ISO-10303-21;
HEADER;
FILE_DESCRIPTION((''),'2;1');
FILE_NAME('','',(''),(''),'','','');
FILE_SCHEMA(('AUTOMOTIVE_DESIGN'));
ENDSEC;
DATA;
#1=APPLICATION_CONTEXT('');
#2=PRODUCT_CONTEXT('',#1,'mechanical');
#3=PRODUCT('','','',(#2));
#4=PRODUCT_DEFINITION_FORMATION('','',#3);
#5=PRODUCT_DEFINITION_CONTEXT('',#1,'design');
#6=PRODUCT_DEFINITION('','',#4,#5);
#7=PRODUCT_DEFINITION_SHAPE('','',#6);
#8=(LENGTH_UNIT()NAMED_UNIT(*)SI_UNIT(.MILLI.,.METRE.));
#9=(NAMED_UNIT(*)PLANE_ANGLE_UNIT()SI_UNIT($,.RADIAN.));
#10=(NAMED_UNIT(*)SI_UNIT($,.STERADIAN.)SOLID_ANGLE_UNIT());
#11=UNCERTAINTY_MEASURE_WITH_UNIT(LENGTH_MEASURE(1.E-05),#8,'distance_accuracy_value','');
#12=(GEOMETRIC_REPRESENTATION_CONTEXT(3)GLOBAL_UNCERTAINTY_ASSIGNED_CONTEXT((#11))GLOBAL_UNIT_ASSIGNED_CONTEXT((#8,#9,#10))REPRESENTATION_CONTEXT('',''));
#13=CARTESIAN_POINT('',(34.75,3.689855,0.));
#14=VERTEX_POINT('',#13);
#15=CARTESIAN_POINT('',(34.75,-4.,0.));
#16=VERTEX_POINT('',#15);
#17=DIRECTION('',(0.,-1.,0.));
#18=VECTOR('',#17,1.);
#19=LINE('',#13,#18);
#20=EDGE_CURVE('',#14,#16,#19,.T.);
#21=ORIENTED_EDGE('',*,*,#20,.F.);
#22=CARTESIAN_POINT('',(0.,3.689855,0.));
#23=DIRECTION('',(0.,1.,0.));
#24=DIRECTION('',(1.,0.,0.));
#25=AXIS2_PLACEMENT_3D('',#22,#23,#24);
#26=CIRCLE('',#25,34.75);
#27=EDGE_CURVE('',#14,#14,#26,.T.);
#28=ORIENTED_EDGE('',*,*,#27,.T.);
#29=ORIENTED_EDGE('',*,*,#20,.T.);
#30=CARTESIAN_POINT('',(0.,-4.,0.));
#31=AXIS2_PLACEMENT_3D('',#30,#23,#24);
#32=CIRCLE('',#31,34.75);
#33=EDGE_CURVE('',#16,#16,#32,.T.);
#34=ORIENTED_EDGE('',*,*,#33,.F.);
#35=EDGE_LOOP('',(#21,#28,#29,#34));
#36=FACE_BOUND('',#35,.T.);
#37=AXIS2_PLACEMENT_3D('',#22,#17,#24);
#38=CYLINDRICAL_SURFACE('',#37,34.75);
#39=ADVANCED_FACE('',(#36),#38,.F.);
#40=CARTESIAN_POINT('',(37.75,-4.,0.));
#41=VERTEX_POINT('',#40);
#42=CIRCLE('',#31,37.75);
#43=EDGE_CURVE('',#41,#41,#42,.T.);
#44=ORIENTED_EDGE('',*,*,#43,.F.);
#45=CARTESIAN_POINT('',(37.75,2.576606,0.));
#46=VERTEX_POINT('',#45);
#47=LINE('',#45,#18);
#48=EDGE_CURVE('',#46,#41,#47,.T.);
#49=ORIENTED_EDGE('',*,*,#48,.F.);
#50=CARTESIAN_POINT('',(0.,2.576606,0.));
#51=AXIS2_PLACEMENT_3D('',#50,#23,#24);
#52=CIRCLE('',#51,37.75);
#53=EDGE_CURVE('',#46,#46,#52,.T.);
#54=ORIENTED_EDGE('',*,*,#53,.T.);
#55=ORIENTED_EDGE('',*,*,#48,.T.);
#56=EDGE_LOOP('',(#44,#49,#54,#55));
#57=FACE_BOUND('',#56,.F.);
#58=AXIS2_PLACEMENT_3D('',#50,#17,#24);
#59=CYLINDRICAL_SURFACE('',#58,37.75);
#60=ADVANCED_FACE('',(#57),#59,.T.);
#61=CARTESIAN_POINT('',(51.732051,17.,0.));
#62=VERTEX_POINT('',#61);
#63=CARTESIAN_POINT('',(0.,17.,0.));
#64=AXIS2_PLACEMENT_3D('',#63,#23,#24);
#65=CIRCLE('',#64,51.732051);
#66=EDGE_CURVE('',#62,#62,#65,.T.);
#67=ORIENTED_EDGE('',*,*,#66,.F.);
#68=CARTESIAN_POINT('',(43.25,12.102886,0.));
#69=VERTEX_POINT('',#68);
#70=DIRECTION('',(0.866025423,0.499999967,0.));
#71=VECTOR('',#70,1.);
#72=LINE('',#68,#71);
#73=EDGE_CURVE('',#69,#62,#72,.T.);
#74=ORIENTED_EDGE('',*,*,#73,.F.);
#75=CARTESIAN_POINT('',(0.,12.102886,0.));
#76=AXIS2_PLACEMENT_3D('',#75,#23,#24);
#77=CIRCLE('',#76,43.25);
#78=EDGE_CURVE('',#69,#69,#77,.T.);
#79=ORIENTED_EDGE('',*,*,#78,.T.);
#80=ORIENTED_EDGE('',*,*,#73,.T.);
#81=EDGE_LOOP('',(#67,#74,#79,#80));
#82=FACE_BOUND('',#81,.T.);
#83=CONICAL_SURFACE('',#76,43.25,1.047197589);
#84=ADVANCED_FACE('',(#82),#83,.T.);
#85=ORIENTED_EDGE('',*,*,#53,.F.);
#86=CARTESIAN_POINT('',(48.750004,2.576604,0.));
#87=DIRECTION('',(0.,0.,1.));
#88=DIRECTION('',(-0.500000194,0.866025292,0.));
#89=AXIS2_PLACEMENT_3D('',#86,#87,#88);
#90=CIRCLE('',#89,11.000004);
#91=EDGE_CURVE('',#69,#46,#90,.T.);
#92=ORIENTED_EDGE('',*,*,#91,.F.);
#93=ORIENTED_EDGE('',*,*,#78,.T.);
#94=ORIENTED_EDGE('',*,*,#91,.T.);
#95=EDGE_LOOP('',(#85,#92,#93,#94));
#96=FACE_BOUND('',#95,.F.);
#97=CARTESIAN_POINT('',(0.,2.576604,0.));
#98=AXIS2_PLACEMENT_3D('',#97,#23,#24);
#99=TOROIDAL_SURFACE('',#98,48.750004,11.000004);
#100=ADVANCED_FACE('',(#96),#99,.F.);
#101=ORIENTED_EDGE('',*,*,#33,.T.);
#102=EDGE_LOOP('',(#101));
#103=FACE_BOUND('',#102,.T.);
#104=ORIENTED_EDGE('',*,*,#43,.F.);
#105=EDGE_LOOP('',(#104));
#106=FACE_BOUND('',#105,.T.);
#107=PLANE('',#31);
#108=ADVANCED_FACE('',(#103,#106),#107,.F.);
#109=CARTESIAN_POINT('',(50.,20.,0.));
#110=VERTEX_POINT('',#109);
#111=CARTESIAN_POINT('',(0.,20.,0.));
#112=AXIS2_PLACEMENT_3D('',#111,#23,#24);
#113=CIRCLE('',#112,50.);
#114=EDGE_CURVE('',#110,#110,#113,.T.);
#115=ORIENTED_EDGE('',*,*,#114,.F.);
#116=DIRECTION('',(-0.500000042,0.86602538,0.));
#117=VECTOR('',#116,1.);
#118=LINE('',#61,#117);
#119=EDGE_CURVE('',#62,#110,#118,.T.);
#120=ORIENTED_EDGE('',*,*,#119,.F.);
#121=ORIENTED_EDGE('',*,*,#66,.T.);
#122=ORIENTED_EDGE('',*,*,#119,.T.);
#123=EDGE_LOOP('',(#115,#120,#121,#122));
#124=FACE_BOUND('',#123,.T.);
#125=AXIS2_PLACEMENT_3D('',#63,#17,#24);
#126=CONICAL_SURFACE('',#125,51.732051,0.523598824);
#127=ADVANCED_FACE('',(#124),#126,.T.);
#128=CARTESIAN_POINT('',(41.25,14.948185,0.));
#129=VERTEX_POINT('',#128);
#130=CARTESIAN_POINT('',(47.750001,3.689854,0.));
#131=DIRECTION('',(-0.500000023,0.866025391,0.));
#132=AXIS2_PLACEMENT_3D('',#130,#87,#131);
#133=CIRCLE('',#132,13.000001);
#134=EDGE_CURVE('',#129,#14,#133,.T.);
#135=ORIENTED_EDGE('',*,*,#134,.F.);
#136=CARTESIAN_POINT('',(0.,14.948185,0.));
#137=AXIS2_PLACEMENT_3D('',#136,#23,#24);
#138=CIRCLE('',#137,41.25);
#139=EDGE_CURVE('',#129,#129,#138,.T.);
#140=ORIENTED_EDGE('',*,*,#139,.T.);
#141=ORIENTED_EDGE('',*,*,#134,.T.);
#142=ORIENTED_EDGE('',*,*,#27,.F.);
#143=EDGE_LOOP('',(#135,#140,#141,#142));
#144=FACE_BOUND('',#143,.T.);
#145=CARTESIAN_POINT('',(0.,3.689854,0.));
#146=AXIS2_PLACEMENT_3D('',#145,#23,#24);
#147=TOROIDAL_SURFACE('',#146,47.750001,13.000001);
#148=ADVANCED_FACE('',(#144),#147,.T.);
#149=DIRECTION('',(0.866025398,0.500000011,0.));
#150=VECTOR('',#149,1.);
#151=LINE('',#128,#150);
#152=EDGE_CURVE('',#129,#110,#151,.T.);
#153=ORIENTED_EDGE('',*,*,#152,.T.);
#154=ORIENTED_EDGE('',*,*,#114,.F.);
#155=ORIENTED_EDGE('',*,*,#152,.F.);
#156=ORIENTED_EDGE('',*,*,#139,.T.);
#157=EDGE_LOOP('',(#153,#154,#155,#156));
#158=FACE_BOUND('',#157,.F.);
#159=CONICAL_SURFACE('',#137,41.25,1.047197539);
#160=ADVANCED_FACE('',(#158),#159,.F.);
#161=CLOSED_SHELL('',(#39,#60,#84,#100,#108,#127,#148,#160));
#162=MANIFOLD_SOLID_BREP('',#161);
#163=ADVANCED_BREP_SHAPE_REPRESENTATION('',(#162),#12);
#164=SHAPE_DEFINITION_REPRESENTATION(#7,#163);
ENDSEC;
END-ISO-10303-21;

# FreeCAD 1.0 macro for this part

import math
import FreeCAD as App
import Part
import Sketcher

V = App.Vector
Q = App.Units.Quantity

doc = App.newDocument("Part")
body = doc.addObject("PartDesign::Body", "Body")

sketch1 = body.newObject("Sketcher::SketchObject", "Sketch")
sketch1.AttachmentSupport = (doc.getObject("XY_Plane"), [""])
sketch1.MapMode = "FlatFace"
sketch1.addGeometry([
    Part.LineSegment(V(43.2, 12.1, 0), V(51.7, 17, 0)),
    Part.LineSegment(V(51.7, 17, 0), V(50, 20, 0)),
    Part.LineSegment(V(50, 20, 0), V(41.2, 14.9, 0)),
    Part.ArcOfCircle(Part.Circle(V(47.8, 3.7, 0), V(0, 0, 1), 13), math.radians(120), math.radians(180)),
    Part.LineSegment(V(34.8, 3.7, 0), V(34.8, -4, 0)),
    Part.LineSegment(V(34.8, -4, 0), V(37.8, -4, 0)),
    Part.LineSegment(V(37.8, -4, 0), V(37.8, 2.6, 0)),
    Part.ArcOfCircle(Part.Circle(V(48.8, 2.6, 0), V(0, 0, 1), 11), math.radians(120), math.radians(180)),
], False)
sketch1.addConstraint([
    Sketcher.Constraint("Coincident", 0, 2, 1, 1),
    Sketcher.Constraint("Coincident", 1, 2, 2, 1),
    Sketcher.Constraint("Tangent", 2, 2, 3, 1),
    Sketcher.Constraint("Tangent", 3, 2, 4, 1),
    Sketcher.Constraint("Coincident", 4, 2, 5, 1),
    Sketcher.Constraint("Coincident", 5, 2, 6, 1),
    Sketcher.Constraint("Tangent", 6, 2, 7, 2),
    Sketcher.Constraint("Tangent", 7, 1, 0, 1),
    Sketcher.Constraint("Vertical", 4),
    Sketcher.Constraint("Horizontal", 5),
    Sketcher.Constraint("Vertical", 6),
    Sketcher.Constraint("Perpendicular", 0, 1),
    Sketcher.Constraint("Perpendicular", 1, 2),
    Sketcher.Constraint("Radius", 3, Q("13.000001 mm")),
    Sketcher.Constraint("DistanceX", 5, 1, 5, 2, Q("3 mm")),
    Sketcher.Constraint("Angle", 0, Q("29.999998 deg")),
    Sketcher.Constraint("DistanceY", -1, 1, 0, 2, Q("17 mm")),
    Sketcher.Constraint("DistanceX", -1, 1, 1, 2, Q("50 mm")),
    Sketcher.Constraint("DistanceY", -1, 1, 1, 2, Q("20 mm")),
    Sketcher.Constraint("DistanceY", 4, 2, -1, 1, Q("4 mm")),
    Sketcher.Constraint("DistanceX", 2, 2, 7, 1, Q("2 mm")),
    Sketcher.Constraint("DistanceX", -1, 1, 3, 3, Q("47.750001 mm")),
])
revolution = body.newObject("PartDesign::Revolution", "Revolution")
revolution.Profile = sketch1
revolution.ReferenceAxis = (sketch1, ["V_Axis"])
revolution.Angle = 360

doc.recompute()
